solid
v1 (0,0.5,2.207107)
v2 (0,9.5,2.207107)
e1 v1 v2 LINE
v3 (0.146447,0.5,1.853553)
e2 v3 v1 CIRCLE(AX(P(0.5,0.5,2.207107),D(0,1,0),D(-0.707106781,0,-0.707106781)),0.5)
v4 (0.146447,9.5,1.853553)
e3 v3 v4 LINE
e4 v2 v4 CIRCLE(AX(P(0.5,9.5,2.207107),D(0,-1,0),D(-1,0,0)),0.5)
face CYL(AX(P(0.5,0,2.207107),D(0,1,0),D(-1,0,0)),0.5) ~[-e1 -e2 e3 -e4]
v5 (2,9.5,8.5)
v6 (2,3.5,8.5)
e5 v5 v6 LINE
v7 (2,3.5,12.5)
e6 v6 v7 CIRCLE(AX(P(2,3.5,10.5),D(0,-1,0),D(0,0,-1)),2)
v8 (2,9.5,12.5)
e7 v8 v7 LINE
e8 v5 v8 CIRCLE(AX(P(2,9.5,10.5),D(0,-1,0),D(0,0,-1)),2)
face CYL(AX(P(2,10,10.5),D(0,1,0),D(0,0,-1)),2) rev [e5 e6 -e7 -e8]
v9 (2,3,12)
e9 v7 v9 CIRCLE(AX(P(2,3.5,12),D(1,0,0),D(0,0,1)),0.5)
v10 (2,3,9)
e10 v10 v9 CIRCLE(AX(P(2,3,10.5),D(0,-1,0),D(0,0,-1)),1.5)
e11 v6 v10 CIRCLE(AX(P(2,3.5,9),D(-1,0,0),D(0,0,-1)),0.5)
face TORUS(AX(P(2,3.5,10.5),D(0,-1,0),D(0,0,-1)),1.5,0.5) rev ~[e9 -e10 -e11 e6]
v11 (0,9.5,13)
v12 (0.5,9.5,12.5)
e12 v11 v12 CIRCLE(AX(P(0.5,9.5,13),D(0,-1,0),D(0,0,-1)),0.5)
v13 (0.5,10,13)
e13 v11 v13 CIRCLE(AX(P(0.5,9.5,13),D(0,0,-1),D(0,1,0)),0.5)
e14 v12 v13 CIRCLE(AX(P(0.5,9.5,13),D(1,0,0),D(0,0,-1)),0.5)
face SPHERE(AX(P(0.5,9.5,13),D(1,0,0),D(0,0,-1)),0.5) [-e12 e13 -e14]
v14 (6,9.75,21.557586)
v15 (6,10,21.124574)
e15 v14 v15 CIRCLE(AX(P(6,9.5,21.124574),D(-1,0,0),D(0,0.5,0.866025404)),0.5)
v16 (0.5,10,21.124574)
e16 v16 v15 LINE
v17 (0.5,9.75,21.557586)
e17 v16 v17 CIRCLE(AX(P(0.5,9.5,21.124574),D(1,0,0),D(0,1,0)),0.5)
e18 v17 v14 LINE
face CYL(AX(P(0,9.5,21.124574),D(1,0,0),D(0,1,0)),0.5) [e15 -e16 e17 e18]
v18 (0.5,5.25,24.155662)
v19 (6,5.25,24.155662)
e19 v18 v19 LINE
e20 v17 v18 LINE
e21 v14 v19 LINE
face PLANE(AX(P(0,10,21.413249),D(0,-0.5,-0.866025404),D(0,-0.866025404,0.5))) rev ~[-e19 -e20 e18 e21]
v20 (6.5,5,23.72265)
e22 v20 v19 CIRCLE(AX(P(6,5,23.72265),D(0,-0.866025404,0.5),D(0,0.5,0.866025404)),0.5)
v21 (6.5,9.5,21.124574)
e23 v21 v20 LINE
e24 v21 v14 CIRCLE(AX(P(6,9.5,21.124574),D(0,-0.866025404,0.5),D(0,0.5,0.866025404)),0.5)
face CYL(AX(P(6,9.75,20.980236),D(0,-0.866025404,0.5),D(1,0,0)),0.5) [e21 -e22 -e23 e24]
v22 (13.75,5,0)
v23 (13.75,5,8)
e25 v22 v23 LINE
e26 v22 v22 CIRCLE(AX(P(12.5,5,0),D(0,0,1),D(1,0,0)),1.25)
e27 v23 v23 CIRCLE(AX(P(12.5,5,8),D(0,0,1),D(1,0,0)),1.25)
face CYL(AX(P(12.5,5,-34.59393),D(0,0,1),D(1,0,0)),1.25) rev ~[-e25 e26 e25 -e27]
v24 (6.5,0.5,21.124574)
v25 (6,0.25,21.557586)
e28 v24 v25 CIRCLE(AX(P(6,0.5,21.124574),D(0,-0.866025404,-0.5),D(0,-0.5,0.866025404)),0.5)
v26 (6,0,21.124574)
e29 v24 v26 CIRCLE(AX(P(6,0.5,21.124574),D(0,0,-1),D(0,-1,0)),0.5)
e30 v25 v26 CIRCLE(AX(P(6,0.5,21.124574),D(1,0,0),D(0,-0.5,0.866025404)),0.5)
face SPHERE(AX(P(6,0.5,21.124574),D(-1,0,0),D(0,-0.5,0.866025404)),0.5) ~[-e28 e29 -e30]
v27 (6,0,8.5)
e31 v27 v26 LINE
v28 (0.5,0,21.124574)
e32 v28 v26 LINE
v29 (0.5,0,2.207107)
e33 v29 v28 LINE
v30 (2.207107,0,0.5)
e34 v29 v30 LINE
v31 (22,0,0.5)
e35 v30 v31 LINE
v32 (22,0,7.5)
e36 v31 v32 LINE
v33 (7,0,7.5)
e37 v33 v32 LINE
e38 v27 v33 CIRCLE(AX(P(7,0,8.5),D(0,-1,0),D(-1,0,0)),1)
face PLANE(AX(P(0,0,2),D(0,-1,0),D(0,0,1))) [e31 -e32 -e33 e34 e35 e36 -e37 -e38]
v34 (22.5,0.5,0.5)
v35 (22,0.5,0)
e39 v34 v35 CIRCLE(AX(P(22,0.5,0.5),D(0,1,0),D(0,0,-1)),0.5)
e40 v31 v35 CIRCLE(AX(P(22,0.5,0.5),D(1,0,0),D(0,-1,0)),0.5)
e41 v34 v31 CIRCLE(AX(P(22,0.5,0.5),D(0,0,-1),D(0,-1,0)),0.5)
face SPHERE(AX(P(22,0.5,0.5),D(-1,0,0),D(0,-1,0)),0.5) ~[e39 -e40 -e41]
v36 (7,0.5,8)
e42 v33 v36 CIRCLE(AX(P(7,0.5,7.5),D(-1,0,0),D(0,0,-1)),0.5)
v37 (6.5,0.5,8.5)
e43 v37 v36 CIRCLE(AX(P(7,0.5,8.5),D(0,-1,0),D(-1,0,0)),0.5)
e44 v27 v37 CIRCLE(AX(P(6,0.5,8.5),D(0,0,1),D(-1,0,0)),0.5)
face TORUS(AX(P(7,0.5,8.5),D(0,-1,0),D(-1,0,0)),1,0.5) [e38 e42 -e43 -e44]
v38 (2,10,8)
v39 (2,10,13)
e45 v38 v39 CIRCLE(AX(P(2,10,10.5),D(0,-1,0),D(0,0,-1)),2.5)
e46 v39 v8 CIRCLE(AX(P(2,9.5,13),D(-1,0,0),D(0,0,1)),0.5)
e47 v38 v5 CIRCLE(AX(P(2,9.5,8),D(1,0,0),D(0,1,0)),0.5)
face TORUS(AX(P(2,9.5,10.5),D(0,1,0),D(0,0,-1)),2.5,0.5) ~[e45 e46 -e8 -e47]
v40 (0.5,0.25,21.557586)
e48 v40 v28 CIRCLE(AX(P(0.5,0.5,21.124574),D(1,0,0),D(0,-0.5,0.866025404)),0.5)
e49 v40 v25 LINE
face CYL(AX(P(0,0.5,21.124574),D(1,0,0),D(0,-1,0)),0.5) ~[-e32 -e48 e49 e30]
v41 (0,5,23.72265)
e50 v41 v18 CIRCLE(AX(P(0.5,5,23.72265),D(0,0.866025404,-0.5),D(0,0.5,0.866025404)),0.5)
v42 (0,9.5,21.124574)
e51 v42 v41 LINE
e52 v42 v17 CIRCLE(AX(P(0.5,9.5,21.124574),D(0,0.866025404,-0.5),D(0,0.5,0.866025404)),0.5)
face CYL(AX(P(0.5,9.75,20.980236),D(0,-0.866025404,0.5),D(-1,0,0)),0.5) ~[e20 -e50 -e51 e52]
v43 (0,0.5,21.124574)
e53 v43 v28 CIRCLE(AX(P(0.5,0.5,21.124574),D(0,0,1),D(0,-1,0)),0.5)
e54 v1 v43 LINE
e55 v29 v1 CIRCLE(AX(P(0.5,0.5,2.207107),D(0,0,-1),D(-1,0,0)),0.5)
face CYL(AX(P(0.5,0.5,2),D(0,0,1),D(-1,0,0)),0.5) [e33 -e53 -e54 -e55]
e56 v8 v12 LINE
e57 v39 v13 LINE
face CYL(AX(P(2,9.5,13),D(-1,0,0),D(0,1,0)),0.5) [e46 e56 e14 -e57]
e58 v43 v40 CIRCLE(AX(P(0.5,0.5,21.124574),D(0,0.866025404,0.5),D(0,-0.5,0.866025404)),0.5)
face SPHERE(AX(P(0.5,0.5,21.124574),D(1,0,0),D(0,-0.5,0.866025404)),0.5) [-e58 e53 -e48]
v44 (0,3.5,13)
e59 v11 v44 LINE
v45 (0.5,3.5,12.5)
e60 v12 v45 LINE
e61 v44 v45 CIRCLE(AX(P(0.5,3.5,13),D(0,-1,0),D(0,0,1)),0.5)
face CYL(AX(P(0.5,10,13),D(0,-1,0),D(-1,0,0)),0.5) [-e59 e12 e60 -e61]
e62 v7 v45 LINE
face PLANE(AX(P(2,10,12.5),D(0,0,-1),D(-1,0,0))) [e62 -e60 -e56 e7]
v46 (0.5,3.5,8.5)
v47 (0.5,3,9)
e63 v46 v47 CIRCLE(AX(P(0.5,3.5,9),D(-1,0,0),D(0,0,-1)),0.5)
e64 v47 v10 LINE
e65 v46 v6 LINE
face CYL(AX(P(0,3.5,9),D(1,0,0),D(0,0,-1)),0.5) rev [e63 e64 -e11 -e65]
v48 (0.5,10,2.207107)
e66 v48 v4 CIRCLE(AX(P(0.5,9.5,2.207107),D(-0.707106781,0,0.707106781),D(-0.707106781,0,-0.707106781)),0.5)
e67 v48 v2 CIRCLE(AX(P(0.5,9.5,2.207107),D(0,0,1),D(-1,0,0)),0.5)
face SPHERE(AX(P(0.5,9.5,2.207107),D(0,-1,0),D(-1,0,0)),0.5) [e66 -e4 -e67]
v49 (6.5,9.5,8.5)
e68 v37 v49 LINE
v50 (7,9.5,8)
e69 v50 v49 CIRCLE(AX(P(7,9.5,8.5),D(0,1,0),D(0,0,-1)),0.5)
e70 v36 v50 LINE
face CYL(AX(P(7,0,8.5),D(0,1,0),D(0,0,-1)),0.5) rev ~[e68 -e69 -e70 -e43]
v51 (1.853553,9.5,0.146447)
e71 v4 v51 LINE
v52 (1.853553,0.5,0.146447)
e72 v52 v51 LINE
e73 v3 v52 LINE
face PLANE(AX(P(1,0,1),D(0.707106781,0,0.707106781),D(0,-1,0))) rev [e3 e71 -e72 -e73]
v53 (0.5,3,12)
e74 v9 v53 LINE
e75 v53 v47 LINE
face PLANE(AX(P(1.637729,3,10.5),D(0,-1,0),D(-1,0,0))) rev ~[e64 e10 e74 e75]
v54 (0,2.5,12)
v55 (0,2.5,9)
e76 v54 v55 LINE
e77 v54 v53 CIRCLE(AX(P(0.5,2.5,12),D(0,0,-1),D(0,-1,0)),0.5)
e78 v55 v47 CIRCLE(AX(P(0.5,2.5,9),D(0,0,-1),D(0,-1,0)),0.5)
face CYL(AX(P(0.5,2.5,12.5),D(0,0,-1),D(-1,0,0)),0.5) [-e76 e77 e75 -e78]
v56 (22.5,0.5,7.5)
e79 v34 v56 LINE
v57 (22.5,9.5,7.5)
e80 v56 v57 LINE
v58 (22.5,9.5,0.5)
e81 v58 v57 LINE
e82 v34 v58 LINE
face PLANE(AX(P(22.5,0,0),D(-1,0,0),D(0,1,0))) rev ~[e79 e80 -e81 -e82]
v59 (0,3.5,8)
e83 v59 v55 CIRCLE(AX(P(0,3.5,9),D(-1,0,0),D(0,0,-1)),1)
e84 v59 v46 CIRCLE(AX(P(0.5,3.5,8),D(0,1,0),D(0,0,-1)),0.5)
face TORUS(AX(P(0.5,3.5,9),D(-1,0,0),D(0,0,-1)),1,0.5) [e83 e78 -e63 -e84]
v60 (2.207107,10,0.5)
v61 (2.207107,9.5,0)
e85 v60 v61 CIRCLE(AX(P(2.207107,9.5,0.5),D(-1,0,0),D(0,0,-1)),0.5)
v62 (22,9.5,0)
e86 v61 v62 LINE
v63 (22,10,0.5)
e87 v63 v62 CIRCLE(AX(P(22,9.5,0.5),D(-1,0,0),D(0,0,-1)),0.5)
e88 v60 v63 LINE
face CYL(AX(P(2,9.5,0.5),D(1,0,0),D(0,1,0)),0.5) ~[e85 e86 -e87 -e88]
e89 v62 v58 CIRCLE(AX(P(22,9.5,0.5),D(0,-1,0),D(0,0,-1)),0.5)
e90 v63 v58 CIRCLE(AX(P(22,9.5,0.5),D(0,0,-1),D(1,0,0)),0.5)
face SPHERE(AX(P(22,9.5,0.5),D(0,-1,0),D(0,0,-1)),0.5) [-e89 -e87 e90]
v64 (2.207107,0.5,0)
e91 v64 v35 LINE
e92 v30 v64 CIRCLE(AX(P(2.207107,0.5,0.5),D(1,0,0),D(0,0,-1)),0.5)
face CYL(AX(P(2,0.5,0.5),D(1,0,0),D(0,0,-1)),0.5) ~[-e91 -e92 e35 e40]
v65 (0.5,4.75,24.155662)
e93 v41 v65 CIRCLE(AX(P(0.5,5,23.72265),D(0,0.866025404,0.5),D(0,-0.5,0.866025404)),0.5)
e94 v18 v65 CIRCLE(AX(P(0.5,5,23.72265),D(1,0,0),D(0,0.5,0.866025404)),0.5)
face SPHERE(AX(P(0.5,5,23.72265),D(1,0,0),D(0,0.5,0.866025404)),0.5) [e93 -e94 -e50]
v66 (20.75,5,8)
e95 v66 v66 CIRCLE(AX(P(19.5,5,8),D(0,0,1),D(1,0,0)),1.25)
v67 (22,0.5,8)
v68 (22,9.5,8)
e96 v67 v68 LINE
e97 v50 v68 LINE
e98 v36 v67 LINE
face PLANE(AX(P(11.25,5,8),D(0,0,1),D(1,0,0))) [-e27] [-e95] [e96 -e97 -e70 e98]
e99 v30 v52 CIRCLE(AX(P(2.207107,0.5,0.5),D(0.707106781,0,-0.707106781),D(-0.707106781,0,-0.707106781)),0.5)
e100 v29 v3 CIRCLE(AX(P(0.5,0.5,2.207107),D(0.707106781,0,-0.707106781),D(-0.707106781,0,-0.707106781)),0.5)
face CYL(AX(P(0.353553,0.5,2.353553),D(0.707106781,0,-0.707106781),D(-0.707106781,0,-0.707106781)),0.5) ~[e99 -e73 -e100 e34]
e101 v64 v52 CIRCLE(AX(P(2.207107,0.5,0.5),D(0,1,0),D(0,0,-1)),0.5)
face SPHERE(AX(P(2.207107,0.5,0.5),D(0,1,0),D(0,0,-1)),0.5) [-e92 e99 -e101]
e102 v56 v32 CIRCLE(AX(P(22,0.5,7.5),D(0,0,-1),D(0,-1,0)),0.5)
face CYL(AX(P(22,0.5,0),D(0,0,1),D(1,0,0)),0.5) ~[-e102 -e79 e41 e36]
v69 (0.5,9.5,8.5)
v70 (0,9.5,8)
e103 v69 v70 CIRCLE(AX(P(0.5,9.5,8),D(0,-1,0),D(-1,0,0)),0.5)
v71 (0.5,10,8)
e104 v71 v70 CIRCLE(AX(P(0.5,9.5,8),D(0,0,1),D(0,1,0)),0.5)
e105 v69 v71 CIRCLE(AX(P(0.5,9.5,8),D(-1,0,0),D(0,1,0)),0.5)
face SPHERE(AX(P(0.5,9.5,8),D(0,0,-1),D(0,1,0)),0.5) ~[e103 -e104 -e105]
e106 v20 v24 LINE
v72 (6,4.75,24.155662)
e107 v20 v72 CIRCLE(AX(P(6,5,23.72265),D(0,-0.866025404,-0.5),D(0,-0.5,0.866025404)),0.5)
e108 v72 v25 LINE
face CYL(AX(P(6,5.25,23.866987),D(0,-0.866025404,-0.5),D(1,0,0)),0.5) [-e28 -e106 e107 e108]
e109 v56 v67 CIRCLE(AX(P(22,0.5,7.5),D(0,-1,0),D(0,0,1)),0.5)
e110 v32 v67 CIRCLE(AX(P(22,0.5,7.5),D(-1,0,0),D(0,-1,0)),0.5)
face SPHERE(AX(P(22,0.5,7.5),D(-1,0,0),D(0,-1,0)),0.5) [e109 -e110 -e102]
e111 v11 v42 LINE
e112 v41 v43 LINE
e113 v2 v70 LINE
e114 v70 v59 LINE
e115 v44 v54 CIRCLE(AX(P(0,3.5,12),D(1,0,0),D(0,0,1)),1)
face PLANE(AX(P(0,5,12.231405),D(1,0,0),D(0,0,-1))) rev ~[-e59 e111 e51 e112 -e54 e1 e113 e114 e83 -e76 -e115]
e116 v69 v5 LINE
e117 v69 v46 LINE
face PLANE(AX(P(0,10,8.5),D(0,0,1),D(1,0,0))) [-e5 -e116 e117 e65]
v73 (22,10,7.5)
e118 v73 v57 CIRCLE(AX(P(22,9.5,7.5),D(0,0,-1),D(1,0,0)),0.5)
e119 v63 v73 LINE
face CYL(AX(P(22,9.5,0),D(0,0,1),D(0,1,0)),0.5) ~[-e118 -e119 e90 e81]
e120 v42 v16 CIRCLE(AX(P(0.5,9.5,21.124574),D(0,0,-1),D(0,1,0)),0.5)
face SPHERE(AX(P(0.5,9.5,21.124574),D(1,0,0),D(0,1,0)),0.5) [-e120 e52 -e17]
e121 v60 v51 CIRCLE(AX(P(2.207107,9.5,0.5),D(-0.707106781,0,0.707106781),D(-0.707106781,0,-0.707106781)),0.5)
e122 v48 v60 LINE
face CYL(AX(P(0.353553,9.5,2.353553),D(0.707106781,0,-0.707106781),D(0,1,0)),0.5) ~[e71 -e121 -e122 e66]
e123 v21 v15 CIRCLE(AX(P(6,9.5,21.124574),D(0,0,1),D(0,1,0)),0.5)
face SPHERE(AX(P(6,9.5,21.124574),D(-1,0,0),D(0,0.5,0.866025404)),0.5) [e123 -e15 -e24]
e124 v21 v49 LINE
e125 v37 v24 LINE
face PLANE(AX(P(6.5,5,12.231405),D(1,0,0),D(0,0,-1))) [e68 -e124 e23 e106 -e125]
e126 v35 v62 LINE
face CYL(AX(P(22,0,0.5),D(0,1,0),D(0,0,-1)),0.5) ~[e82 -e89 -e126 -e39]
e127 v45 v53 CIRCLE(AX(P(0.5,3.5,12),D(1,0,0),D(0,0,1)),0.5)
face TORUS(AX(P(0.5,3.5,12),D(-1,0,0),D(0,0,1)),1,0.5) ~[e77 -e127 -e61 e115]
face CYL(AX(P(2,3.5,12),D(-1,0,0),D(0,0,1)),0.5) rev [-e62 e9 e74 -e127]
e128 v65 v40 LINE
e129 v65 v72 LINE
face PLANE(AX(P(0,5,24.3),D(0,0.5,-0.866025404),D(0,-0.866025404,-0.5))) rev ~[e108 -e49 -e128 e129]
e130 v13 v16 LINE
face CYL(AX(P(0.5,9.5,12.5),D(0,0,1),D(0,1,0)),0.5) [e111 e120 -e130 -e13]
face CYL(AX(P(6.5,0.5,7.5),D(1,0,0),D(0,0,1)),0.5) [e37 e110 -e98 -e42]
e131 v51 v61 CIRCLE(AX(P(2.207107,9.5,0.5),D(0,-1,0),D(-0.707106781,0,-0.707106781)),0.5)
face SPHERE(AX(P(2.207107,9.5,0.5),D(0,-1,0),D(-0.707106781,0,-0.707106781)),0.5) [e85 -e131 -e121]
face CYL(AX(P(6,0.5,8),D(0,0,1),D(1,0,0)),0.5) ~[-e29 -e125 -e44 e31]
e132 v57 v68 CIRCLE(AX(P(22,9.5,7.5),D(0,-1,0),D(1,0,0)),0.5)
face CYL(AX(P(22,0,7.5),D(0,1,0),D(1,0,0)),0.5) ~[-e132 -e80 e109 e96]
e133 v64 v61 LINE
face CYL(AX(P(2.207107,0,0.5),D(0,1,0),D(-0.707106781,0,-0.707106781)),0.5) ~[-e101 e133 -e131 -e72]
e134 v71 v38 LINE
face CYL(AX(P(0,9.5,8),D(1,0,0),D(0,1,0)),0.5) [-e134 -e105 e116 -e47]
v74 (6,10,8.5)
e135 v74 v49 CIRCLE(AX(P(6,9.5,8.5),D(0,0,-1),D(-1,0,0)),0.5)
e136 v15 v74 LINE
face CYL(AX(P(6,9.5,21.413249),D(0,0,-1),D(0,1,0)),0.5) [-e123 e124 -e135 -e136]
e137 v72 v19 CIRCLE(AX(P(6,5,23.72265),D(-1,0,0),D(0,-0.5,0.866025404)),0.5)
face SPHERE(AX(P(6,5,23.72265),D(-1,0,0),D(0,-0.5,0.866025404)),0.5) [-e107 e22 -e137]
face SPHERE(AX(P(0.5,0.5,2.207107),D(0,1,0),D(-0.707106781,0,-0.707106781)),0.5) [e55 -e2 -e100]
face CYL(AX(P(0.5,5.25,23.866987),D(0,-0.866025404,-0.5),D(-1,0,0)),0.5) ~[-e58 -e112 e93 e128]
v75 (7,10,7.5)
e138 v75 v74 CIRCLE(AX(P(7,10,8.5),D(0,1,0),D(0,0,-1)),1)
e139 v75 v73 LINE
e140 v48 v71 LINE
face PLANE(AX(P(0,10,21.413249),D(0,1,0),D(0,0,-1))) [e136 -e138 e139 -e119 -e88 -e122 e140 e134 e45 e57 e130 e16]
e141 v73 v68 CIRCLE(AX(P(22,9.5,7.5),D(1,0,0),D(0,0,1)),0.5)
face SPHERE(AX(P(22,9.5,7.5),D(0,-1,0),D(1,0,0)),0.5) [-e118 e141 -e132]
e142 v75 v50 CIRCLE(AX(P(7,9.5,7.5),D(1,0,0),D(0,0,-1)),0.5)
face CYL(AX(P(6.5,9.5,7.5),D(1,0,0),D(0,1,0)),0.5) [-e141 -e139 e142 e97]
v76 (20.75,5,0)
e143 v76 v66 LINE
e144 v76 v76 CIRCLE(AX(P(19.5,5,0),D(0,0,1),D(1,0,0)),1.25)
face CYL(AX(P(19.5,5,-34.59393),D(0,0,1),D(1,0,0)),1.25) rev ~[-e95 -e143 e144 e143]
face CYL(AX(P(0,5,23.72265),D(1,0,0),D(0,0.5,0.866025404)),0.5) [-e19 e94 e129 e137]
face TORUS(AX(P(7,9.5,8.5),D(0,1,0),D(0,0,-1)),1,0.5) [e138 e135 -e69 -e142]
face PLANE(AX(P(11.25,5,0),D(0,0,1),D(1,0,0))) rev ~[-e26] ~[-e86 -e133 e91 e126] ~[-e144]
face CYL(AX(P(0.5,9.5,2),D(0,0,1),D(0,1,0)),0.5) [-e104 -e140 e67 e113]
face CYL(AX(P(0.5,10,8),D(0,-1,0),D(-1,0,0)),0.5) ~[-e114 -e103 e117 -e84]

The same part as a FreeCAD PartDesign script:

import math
import FreeCAD as App
import Part
import Sketcher
from FreeCAD import Vector
Q = App.Units.Quantity


def edges_at(feature, points):
    """Names of the edges that pass closest to the given points."""
    edges = feature.Shape.Edges
    near = lambda p: min(range(len(edges)), key=lambda i: edges[i].distToShape(Part.Vertex(*p))[0])
    return sorted({f"Edge{near(p) + 1}" for p in points})


def add_polygon(sketch, points):
    """Adds a closed chain of lines whose ends are joined by coincident constraints."""
    first, n = sketch.GeometryCount, len(points)
    for a, b in zip(points, points[1:] + points[:1]):
        sketch.addGeometry(Part.LineSegment(App.Vector(*a, 0), App.Vector(*b, 0)), False)
    for i in range(n):
        sketch.addConstraint(Sketcher.Constraint("Coincident", first + i, 2, first + (i + 1) % n, 1))

doc = App.newDocument("Part")
body = doc.addObject("PartDesign::Body", "Body")

# Sketch on XY plane
sketch1 = body.newObject("Sketcher::SketchObject", "Sketch")
sketch1.AttachmentSupport = (doc.getObject("XY_Plane"), [""])
sketch1.MapMode = "FlatFace"
add_polygon(sketch1, [(0, 10), (0, 0), (22, 0), (22, 10)])  # lines 0-3
sketch1.addConstraint(Sketcher.Constraint("Vertical", 0))
sketch1.addConstraint(Sketcher.Constraint("Horizontal", 1))
sketch1.addConstraint(Sketcher.Constraint("Vertical", 2))
sketch1.addConstraint(Sketcher.Constraint("Horizontal", 3))
sketch1.addConstraint(Sketcher.Constraint("Coincident", 0, 2, -1, 1))
sketch1.addConstraint(Sketcher.Constraint("DistanceY", 0, 2, 0, 1, 10.0))
sketch1.addConstraint(Sketcher.Constraint("DistanceX", 1, 1, 1, 2, 22.5))
pad1 = body.newObject("PartDesign::Pad", "Pad")
pad1.Profile = sketch1
pad1.Length = 8
doc.recompute()

chamfer = body.newObject("PartDesign::Chamfer", "Chamfer")
chamfer.Base = (pad1, edges_at(pad1, [(0, 5, 0)]))
chamfer.Size = 2

# Sketch on YZ plane
sketch2 = body.newObject("Sketcher::SketchObject", "Sketch001")
sketch2.AttachmentSupport = (doc.getObject("YZ_Plane"), [""])
sketch2.MapMode = "FlatFace"
add_polygon(sketch2, [(10, 21), (10, 2), (0, 2), (0, 21), (5, 24)])  # lines 0-4
sketch2.addConstraint(Sketcher.Constraint("Vertical", 0))
sketch2.addConstraint(Sketcher.Constraint("Horizontal", 1))
sketch2.addConstraint(Sketcher.Constraint("Vertical", 2))
sketch2.addConstraint(Sketcher.Constraint("PointOnObject", 1, 2, -2))
sketch2.addConstraint(Sketcher.Constraint("Horizontal", 2, 2, 4, 2))
sketch2.addConstraint(Sketcher.Constraint("Equal", 3, 4))
sketch2.addConstraint(Sketcher.Constraint("DistanceX", 1, 2, 1, 1, 10.0))
sketch2.addConstraint(Sketcher.Constraint("Angle", 3, Q("30 deg")))
sketch2.addConstraint(Sketcher.Constraint("DistanceY", -1, 1, 0, 2, 2.0))
sketch2.addConstraint(Sketcher.Constraint("DistanceY", -1, 1, 3, 2, 24.3))
pad2 = body.newObject("PartDesign::Pad", "Pad001")
pad2.Profile = sketch2
pad2.Length = 6.5

# Sketch on XZ plane
sketch3 = body.newObject("Sketcher::SketchObject", "Sketch002")
sketch3.AttachmentSupport = (doc.getObject("XZ_Plane"), [""])
sketch3.MapMode = "FlatFace"
sketch3.AttachmentOffset = App.Placement(Vector(0, 0, -10), App.Rotation())
sketch3.addGeometry(Part.LineSegment(Vector(2, 8.5, 0), Vector(0, 8.5, 0)), False)
sketch3.addGeometry(Part.LineSegment(Vector(0, 8.5, 0), Vector(0, 12.5, 0)), False)
sketch3.addGeometry(Part.LineSegment(Vector(0, 12.5, 0), Vector(2, 12.5, 0)), False)
sketch3.addGeometry(Part.ArcOfCircle(Part.Circle(Vector(2, 10.5, 0), Vector(0, 0, 1), 2), math.radians(-90), math.radians(90)), False)
sketch3.addConstraint(Sketcher.Constraint("Coincident", 0, 2, 1, 1))
sketch3.addConstraint(Sketcher.Constraint("Coincident", 1, 2, 2, 1))
sketch3.addConstraint(Sketcher.Constraint("Tangent", 2, 2, 3, 2))
sketch3.addConstraint(Sketcher.Constraint("Tangent", 3, 1, 0, 1))
sketch3.addConstraint(Sketcher.Constraint("Horizontal", 0))
sketch3.addConstraint(Sketcher.Constraint("Vertical", 1))
sketch3.addConstraint(Sketcher.Constraint("Horizontal", 2))
sketch3.addConstraint(Sketcher.Constraint("PointOnObject", 0, 2, -2))
sketch3.addConstraint(Sketcher.Constraint("Radius", 3, 2.0))
sketch3.addConstraint(Sketcher.Constraint("DistanceX", 0, 2, 0, 1, 2.0))
sketch3.addConstraint(Sketcher.Constraint("DistanceY", -1, 1, 3, 3, 10.5))
pocket1 = body.newObject("PartDesign::Pocket", "Pocket")
pocket1.Profile = sketch3
pocket1.Length = 7
pocket1.Reversed = True

# Sketch on XY plane
sketch4 = body.newObject("Sketcher::SketchObject", "Sketch003")
sketch4.AttachmentSupport = (doc.getObject("XY_Plane"), [""])
sketch4.MapMode = "FlatFace"
sketch4.addGeometry(Part.Circle(Vector(19.5, 5, 0), Vector(0, 0, 1), 1.2), False)
sketch4.addGeometry(Part.Circle(Vector(12.5, 5, 0), Vector(0, 0, 1), 1.2), False)
sketch4.addConstraint(Sketcher.Constraint("Equal", 0, 1))
sketch4.addConstraint(Sketcher.Constraint("Horizontal", 0, 3, 1, 3))
sketch4.addConstraint(Sketcher.Constraint("Diameter", 0, 2.5))
sketch4.addConstraint(Sketcher.Constraint("DistanceY", -1, 1, 0, 3, 5.0))
sketch4.addConstraint(Sketcher.Constraint("DistanceX", 1, 3, 0, 3, 7.0))
sketch4.addConstraint(Sketcher.Constraint("DistanceX", -1, 1, 0, 3, 19.5))
doc.recompute()
hole = body.newObject("PartDesign::Hole", "Hole")
hole.Profile = sketch4
hole.ThreadType = "None"
hole.Diameter = 2.5
hole.DepthType = "ThroughAll"
hole.Reversed = True
doc.recompute()

fillet = body.newObject("PartDesign::Fillet", "Fillet")
fillet.Base = (hole, edges_at(hole, [
    (0, 10, 5.25),
    (3.25, 5, 24.3),
    (3.25, 0, 21.413),
    (14.5, 0, 8),
    (12.25, 0, 0),
    (1, 0, 1),
    (2, 5, 0),
    (1, 3, 8.5),
    (4, 3, 10.5),
    (1, 3, 12.5),
    (22.5, 0, 4),
    (22.5, 5, 8),
    (22.5, 5, 0),
    (6.5, 2.5, 22.857),
    (6.5, 7.5, 22.857),
    (6.5, 5, 8),
    (6.5, 0, 14.707),
    (1, 10, 1),
    (12.25, 10, 0),
    (22.5, 10, 4),
    (14.5, 10, 8),
    (6.5, 10, 14.707),
    (3.25, 10, 21.413),
    (1, 10, 12.5),
    (4, 10, 10.5),
    (1, 10, 8.5),
    (0, 6.5, 12.5),
    (0, 10, 16.957),
    (0, 7.5, 22.857),
    (0, 2.5, 22.857),
    (0, 0, 11.707),
    (0, 5, 2),
    (0, 6.5, 8.5),
    (0, 3, 10.5),
]))
fillet.Radius = 0.5

doc.recompute()
